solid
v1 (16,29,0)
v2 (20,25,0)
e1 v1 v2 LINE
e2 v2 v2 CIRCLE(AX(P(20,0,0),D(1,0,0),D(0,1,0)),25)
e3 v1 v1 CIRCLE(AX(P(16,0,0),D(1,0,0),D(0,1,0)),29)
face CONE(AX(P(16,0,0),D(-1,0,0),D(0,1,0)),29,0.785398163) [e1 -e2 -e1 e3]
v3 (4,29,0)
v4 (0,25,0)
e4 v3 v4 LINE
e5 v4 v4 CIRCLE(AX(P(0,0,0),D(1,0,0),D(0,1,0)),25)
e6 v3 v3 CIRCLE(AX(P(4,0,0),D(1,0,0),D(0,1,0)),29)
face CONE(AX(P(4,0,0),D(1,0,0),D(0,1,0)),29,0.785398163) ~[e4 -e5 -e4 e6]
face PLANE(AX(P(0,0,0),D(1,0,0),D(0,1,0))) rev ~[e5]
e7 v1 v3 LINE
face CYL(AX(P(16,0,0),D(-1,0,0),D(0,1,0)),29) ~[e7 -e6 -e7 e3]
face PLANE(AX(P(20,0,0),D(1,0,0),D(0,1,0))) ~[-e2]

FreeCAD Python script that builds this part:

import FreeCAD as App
import Part
import Sketcher

V = App.Vector
Q = App.Units.Quantity


def add_polygon(sketch, points):
    """Adds a closed chain of lines whose ends are joined by coincident constraints."""
    first, n = sketch.GeometryCount, len(points)
    for a, b in zip(points, points[1:] + points[:1]):
        sketch.addGeometry(Part.LineSegment(App.Vector(*a, 0), App.Vector(*b, 0)), False)
    for i in range(n):
        sketch.addConstraint(Sketcher.Constraint("Coincident", first + i, 2, first + (i + 1) % n, 1))

doc = App.newDocument("Part")
params = doc.addObject("Spreadsheet::Sheet", "Params")
for row, (alias, value) in enumerate([
    ("sketch1_width", "20 mm"),
    ("revolution_angle", "360 deg"),
], start=1):
    params.set(f"A{row}", alias)
    params.set(f"B{row}", "=" + value)
    params.setAlias(f"B{row}", alias)

body = doc.addObject("PartDesign::Body", "Body")

sketch1 = body.newObject("Sketcher::SketchObject", "Sketch")
sketch1.AttachmentSupport = (doc.getObject("XY_Plane"), [""])
sketch1.MapMode = "FlatFace"
add_polygon(sketch1, [(0, 25), (0, 0), (20, 0), (20, 25), (16, 29), (4, 29)])
sketch1.addConstraint([
    Sketcher.Constraint("Vertical", 0),
    Sketcher.Constraint("Horizontal", 1),
    Sketcher.Constraint("Vertical", 2),
    Sketcher.Constraint("Horizontal", 4),
    Sketcher.Constraint("Coincident", 0, 2, -1, 1),
    Sketcher.Constraint("Perpendicular", 3, 5),
    Sketcher.Constraint("Horizontal", 2, 2, 5, 2),
    Sketcher.Constraint("Equal", 3, 5),
    Sketcher.Constraint("DistanceX", 1, 1, 1, 2, Q("20 mm")),
    Sketcher.Constraint("DistanceY", -1, 1, 3, 2, Q("29 mm")),
    Sketcher.Constraint("DistanceX", -1, 1, 4, 2, Q("4 mm")),
])
sketch1.setExpression("Constraints[14]", "Params.sketch1_width")
revolution = body.newObject("PartDesign::Revolution", "Revolution")
revolution.Profile = sketch1
revolution.ReferenceAxis = (sketch1, ["H_Axis"])
revolution.setExpression("Angle", "Params.revolution_angle")

doc.recompute()
